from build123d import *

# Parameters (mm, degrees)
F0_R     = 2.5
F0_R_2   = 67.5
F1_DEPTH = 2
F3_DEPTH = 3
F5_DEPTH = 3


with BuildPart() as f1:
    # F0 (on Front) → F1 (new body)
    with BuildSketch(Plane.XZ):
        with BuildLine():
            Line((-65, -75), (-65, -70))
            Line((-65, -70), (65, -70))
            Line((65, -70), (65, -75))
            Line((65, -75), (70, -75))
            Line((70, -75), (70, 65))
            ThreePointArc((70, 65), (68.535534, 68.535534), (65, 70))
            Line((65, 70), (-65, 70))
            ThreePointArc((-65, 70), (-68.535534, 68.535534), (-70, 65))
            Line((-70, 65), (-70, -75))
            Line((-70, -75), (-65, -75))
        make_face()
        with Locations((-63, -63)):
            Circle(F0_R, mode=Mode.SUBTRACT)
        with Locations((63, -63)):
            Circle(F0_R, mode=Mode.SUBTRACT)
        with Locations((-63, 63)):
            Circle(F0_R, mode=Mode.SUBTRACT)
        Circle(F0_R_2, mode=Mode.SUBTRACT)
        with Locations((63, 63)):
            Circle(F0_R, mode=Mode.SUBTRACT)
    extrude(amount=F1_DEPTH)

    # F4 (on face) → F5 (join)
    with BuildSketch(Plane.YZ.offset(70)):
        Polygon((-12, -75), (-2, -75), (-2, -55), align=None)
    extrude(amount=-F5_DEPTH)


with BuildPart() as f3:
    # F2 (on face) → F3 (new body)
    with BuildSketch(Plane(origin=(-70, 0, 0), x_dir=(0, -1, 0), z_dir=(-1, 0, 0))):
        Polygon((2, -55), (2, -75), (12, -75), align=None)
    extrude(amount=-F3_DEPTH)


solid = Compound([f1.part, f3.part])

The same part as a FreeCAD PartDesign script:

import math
import FreeCAD as App
import Part
import Sketcher


def add_polygon(sketch, points):
    """Adds a closed chain of lines whose ends are joined by coincident constraints."""
    first, n = sketch.GeometryCount, len(points)
    for a, b in zip(points, points[1:] + points[:1]):
        sketch.addGeometry(Part.LineSegment(App.Vector(*a, 0), App.Vector(*b, 0)), False)
    for i in range(n):
        sketch.addConstraint(Sketcher.Constraint("Coincident", first + i, 2, first + (i + 1) % n, 1))

doc = App.newDocument("Part")
body = doc.addObject("PartDesign::Body", "Body")

# Sketch on XZ plane
sketch1 = body.newObject("Sketcher::SketchObject", "Sketch")
sketch1.AttachmentSupport = (doc.getObject("XZ_Plane"), [""])
sketch1.MapMode = "FlatFace"
sketch1.addGeometry(Part.LineSegment(App.Vector(-65, -75, 0), App.Vector(-65, -70, 0)), False)
sketch1.addGeometry(Part.LineSegment(App.Vector(-65, -70, 0), App.Vector(65, -70, 0)), False)
sketch1.addGeometry(Part.LineSegment(App.Vector(65, -70, 0), App.Vector(65, -75, 0)), False)
sketch1.addGeometry(Part.LineSegment(App.Vector(65, -75, 0), App.Vector(70, -75, 0)), False)
sketch1.addGeometry(Part.LineSegment(App.Vector(70, -75, 0), App.Vector(70, 65, 0)), False)
sketch1.addGeometry(Part.ArcOfCircle(Part.Circle(App.Vector(65, 65, 0), App.Vector(0, 0, 1), 5), math.radians(0), math.radians(90)), False)
sketch1.addGeometry(Part.LineSegment(App.Vector(65, 70, 0), App.Vector(-65, 70, 0)), False)
sketch1.addGeometry(Part.ArcOfCircle(Part.Circle(App.Vector(-65, 65, 0), App.Vector(0, 0, 1), 5), math.radians(90), math.radians(180)), False)
sketch1.addGeometry(Part.LineSegment(App.Vector(-70, 65, 0), App.Vector(-70, -75, 0)), False)
sketch1.addGeometry(Part.LineSegment(App.Vector(-70, -75, 0), App.Vector(-65, -75, 0)), False)
sketch1.addGeometry(Part.Circle(App.Vector(-63, -63, 0), App.Vector(0, 0, 1), 2.5), False)
sketch1.addGeometry(Part.Circle(App.Vector(63, -63, 0), App.Vector(0, 0, 1), 2.5), False)
sketch1.addGeometry(Part.Circle(App.Vector(-63, 63, 0), App.Vector(0, 0, 1), 2.5), False)
sketch1.addGeometry(Part.Circle(App.Vector(0, 0, 0), App.Vector(0, 0, 1), 67.5), False)
sketch1.addGeometry(Part.Circle(App.Vector(63, 63, 0), App.Vector(0, 0, 1), 2.5), False)
sketch1.addConstraint(Sketcher.Constraint("Coincident", 0, 2, 1, 1))
sketch1.addConstraint(Sketcher.Constraint("Coincident", 1, 2, 2, 1))
sketch1.addConstraint(Sketcher.Constraint("Coincident", 2, 2, 3, 1))
sketch1.addConstraint(Sketcher.Constraint("Coincident", 3, 2, 4, 1))
sketch1.addConstraint(Sketcher.Constraint("Tangent", 4, 2, 5, 1))
sketch1.addConstraint(Sketcher.Constraint("Tangent", 5, 2, 6, 1))
sketch1.addConstraint(Sketcher.Constraint("Tangent", 6, 2, 7, 1))
sketch1.addConstraint(Sketcher.Constraint("Tangent", 7, 2, 8, 1))
sketch1.addConstraint(Sketcher.Constraint("Coincident", 8, 2, 9, 1))
sketch1.addConstraint(Sketcher.Constraint("Coincident", 9, 2, 0, 1))
sketch1.addConstraint(Sketcher.Constraint("Vertical", 0))
sketch1.addConstraint(Sketcher.Constraint("Horizontal", 1))
sketch1.addConstraint(Sketcher.Constraint("Vertical", 2))
sketch1.addConstraint(Sketcher.Constraint("Horizontal", 3))
sketch1.addConstraint(Sketcher.Constraint("Vertical", 4))
sketch1.addConstraint(Sketcher.Constraint("Horizontal", 6))
sketch1.addConstraint(Sketcher.Constraint("Vertical", 8))
sketch1.addConstraint(Sketcher.Constraint("Horizontal", 9))
sketch1.addConstraint(Sketcher.Constraint("Coincident", 13, 3, -1, 1))
sketch1.addConstraint(Sketcher.Constraint("Equal", 5, 7))
sketch1.addConstraint(Sketcher.Constraint("Equal", 10, 11))
sketch1.addConstraint(Sketcher.Constraint("Equal", 11, 12))
sketch1.addConstraint(Sketcher.Constraint("Equal", 12, 14))
sketch1.addConstraint(Sketcher.Constraint("Symmetric", 11, 3, 12, 3, -1, 1))
sketch1.addConstraint(Sketcher.Constraint("Symmetric", 10, 3, 14, 3, -1, 1))
sketch1.addConstraint(Sketcher.Constraint("Symmetric", 0, 2, 5, 2, -1, 1))
sketch1.addConstraint(Sketcher.Constraint("Symmetric", 10, 3, 11, 3, -2))
sketch1.addConstraint(Sketcher.Constraint("Symmetric", 3, 2, 8, 2, -2))
sketch1.addConstraint(Sketcher.Constraint("Vertical", 5, 3, 1, 2))
sketch1.addConstraint(Sketcher.Constraint("Equal", 9, 0))
sketch1.addConstraint(Sketcher.Constraint("Diameter", 10, 5.0))
sketch1.addConstraint(Sketcher.Constraint("Diameter", 13, 135.0))
sketch1.addConstraint(Sketcher.Constraint("Radius", 5, 5.0))
sketch1.addConstraint(Sketcher.Constraint("DistanceX", 1, 1, 1, 2, 130.0))
sketch1.addConstraint(Sketcher.Constraint("DistanceY", 4, 1, 4, 2, 140.0))
sketch1.addConstraint(Sketcher.Constraint("DistanceX", 10, 3, -1, 1, 63.0))
sketch1.addConstraint(Sketcher.Constraint("DistanceY", 10, 3, -1, 1, 63.0))
pad1 = body.newObject("PartDesign::Pad", "Pad")
pad1.Profile = sketch1
pad1.Length = 2

# Sketch on YZ plane
sketch2 = body.newObject("Sketcher::SketchObject", "Sketch001")
sketch2.AttachmentSupport = (doc.getObject("YZ_Plane"), [""])
sketch2.MapMode = "FlatFace"
sketch2.AttachmentOffset = App.Placement(App.Vector(0, 0, 70), App.Rotation())
add_polygon(sketch2, [(-12, -75), (-2, -75), (-2, -55)])  # lines 0-2
sketch2.addConstraint(Sketcher.Constraint("Horizontal", 0))
sketch2.addConstraint(Sketcher.Constraint("Vertical", 1))
sketch2.addConstraint(Sketcher.Constraint("DistanceX", 0, 1, 0, 2, 10.0))
sketch2.addConstraint(Sketcher.Constraint("DistanceY", 1, 1, 1, 2, 20.0))
sketch2.addConstraint(Sketcher.Constraint("DistanceX", 0, 2, -1, 1, 2.0))
sketch2.addConstraint(Sketcher.Constraint("DistanceY", 0, 2, -1, 1, 75.0))
pad2 = body.newObject("PartDesign::Pad", "Pad001")
pad2.Profile = sketch2
pad2.Length = 3
pad2.Reversed = True
body2 = doc.addObject("PartDesign::Body", "Body001")

# Sketch on YZ plane
sketch3 = body2.newObject("Sketcher::SketchObject", "Sketch002")
sketch3.AttachmentSupport = (doc.getObject("YZ_Plane001"), [""])
sketch3.MapMode = "FlatFace"
sketch3.AttachmentOffset = App.Placement(App.Vector(0, 0, -70), App.Rotation())
add_polygon(sketch3, [(-2, -55), (-2, -75), (-12, -75)])  # lines 0-2
sketch3.addConstraint(Sketcher.Constraint("Vertical", 0))
sketch3.addConstraint(Sketcher.Constraint("Horizontal", 1))
sketch3.addConstraint(Sketcher.Constraint("DistanceX", 1, 2, 1, 1, 10.0))
sketch3.addConstraint(Sketcher.Constraint("DistanceY", 0, 2, 0, 1, 20.0))
sketch3.addConstraint(Sketcher.Constraint("DistanceX", 0, 2, -1, 1, 2.0))
sketch3.addConstraint(Sketcher.Constraint("DistanceY", 0, 2, -1, 1, 75.0))
pad3 = body2.newObject("PartDesign::Pad", "Pad002")
pad3.Profile = sketch3
pad3.Length = 3

doc.recompute()
